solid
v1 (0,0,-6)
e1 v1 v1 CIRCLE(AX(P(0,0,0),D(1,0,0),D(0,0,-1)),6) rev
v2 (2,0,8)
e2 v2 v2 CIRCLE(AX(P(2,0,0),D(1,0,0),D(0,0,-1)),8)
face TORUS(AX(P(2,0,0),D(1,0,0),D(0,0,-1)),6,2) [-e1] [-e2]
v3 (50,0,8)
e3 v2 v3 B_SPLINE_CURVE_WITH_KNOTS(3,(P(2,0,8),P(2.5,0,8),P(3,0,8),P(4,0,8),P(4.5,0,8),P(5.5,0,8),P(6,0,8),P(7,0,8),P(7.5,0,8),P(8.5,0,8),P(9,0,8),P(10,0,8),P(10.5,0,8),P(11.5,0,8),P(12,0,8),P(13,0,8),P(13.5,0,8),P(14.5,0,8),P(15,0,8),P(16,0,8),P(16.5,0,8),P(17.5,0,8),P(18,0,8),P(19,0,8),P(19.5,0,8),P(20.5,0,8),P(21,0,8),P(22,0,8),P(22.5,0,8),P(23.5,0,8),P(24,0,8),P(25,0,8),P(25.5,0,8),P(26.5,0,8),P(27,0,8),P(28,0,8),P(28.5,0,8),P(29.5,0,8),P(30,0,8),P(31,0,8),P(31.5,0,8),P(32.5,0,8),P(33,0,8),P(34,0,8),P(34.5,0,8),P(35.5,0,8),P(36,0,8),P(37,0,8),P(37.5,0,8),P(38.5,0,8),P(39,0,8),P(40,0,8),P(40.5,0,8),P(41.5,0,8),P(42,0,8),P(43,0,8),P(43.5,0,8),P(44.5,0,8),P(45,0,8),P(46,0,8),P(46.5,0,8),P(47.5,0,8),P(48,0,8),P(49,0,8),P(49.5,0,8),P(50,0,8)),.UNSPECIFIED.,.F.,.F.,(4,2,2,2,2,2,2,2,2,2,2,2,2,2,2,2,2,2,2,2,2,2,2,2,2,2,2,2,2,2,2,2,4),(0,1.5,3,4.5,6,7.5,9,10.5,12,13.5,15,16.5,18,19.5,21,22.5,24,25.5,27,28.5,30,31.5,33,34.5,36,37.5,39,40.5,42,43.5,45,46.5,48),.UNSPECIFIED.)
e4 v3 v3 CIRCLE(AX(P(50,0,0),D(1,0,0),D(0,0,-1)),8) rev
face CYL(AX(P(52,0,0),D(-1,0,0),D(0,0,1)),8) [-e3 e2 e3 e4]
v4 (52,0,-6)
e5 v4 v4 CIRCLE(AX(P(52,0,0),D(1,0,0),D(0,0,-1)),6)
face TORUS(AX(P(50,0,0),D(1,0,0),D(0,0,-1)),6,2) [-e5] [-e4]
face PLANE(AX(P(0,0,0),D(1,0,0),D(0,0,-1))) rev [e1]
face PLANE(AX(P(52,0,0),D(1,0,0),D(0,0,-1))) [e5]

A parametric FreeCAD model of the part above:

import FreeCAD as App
import Part
import Sketcher

V = App.Vector
Q = App.Units.Quantity


def edges_at(feature, points):
    """Names of the edges that pass closest to the given points."""
    edges = feature.Shape.Edges
    near = lambda p: min(range(len(edges)), key=lambda i: edges[i].distToShape(Part.Vertex(*p))[0])
    return sorted({f"Edge{near(p) + 1}" for p in points})

doc = App.newDocument("Part")
body = doc.addObject("PartDesign::Body", "Body")

# Sketch on YZ plane
sketch1 = body.newObject("Sketcher::SketchObject", "Sketch")
sketch1.AttachmentSupport = (doc.getObject("YZ_Plane"), [""])
sketch1.MapMode = "FlatFace"
sketch1.addGeometry(Part.Circle(V(0, 0, 0), V(0, 0, 1), 8), False)
sketch1.addConstraint(Sketcher.Constraint("Coincident", 0, 3, -1, 1))
sketch1.addConstraint(Sketcher.Constraint("Diameter", 0, Q("16 mm")))
pad1 = body.newObject("PartDesign::Pad", "Pad")
pad1.Profile = sketch1
pad1.Length = 52
doc.recompute()

fillet = body.newObject("PartDesign::Fillet", "Fillet")
fillet.Base = (pad1, edges_at(pad1, [(0, 0, -8), (52, 0, -8)]))
fillet.Radius = 2

doc.recompute()
